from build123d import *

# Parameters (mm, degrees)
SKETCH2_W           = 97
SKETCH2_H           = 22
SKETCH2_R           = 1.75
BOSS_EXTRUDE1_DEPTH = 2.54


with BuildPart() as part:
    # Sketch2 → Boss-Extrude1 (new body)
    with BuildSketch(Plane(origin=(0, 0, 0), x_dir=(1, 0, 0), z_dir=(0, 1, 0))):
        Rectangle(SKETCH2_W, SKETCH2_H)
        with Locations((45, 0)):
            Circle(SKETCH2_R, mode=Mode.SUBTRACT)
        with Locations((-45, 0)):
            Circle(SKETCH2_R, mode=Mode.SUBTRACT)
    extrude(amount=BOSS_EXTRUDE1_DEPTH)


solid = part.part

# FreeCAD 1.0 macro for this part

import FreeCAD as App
import Part
import Sketcher

V = App.Vector
Q = App.Units.Quantity


def add_polygon(sketch, points):
    """Adds a closed chain of lines whose ends are joined by coincident constraints."""
    first, n = sketch.GeometryCount, len(points)
    for a, b in zip(points, points[1:] + points[:1]):
        sketch.addGeometry(Part.LineSegment(App.Vector(*a, 0), App.Vector(*b, 0)), False)
    for i in range(n):
        sketch.addConstraint(Sketcher.Constraint("Coincident", first + i, 2, first + (i + 1) % n, 1))

doc = App.newDocument("Part")
body = doc.addObject("PartDesign::Body", "Body")

sketch1 = body.newObject("Sketcher::SketchObject", "Sketch")
sketch1.AttachmentSupport = (doc.getObject("XZ_Plane"), [""])
sketch1.MapMode = "FlatFace"
add_polygon(sketch1, [(-48.5, -11), (-48.5, 11), (48.5, 11), (48.5, -11)])
sketch1.addGeometry(Part.Circle(V(-45, 0, 0), V(0, 0, 1), 1.8), False)
sketch1.addGeometry(Part.Circle(V(45, 0, 0), V(0, 0, 1), 1.8), False)
sketch1.addConstraint(Sketcher.Constraint("Vertical", 0))
sketch1.addConstraint(Sketcher.Constraint("Horizontal", 1))
sketch1.addConstraint(Sketcher.Constraint("Vertical", 2))
sketch1.addConstraint(Sketcher.Constraint("Horizontal", 3))
sketch1.addConstraint(Sketcher.Constraint("Equal", 4, 5))
sketch1.addConstraint(Sketcher.Constraint("Symmetric", 4, 3, 5, 3, -1, 1))
sketch1.addConstraint(Sketcher.Constraint("Symmetric", 0, 2, 2, 2, -1, 1))
sketch1.addConstraint(Sketcher.Constraint("PointOnObject", 4, 3, -1))
sketch1.addConstraint(Sketcher.Constraint("Diameter", 4, Q("3.5 mm")))
sketch1.addConstraint(Sketcher.Constraint("DistanceX", 1, 1, 1, 2, Q("97 mm")))
sketch1.addConstraint(Sketcher.Constraint("DistanceY", 0, 1, 0, 2, Q("22 mm")))
sketch1.addConstraint(Sketcher.Constraint("DistanceX", 4, 3, -1, 1, Q("45 mm")))
pad1 = body.newObject("PartDesign::Pad", "Pad")
pad1.Profile = sketch1
pad1.Length = 2.54
pad1.Reversed = True

doc.recompute()
